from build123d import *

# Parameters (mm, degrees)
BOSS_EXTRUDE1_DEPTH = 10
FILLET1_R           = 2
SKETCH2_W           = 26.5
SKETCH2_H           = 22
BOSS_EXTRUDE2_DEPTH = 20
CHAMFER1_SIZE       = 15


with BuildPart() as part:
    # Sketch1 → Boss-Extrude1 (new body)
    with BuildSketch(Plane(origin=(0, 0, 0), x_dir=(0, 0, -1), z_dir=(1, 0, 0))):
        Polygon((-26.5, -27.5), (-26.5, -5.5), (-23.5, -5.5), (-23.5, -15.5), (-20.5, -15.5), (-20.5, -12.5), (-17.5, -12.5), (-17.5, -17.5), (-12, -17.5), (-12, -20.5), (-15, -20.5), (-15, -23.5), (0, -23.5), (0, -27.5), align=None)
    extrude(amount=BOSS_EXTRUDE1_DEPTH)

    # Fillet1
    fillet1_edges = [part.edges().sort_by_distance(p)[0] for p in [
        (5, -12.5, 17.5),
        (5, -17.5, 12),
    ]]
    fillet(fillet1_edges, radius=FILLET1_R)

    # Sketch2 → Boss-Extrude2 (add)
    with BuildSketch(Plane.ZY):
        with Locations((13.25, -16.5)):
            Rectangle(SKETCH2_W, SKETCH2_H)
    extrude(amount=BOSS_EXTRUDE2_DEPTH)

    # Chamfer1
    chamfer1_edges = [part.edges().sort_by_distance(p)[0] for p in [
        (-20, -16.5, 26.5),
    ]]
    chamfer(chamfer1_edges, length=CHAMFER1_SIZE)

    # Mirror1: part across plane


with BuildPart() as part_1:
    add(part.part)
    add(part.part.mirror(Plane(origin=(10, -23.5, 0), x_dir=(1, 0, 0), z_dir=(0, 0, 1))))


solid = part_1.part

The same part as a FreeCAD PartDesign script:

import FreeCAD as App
import Part
import Sketcher
Q = App.Units.Quantity


def edges_at(feature, points):
    """Names of the edges that pass closest to the given points."""
    edges = feature.Shape.Edges
    near = lambda p: min(range(len(edges)), key=lambda i: edges[i].distToShape(Part.Vertex(*p))[0])
    return sorted({f"Edge{near(p) + 1}" for p in points})


def add_polygon(sketch, points):
    """Adds a closed chain of lines whose ends are joined by coincident constraints."""
    first, n = sketch.GeometryCount, len(points)
    for a, b in zip(points, points[1:] + points[:1]):
        sketch.addGeometry(Part.LineSegment(App.Vector(*a, 0), App.Vector(*b, 0)), False)
    for i in range(n):
        sketch.addConstraint(Sketcher.Constraint("Coincident", first + i, 2, first + (i + 1) % n, 1))

doc = App.newDocument("Part")
params = doc.addObject("Spreadsheet::Sheet", "Params")
for row, (alias, value) in enumerate([
    ("sketch1_width", "22 mm"),
    ("sketch1_width2", "4 mm"),
    ("sketch1_width3", "3 mm"),
    ("sketch1_width4", "5 mm"),
    ("sketch1_height", "15 mm"),
    ("pad1_length", "10 mm"),
    ("fillet_radius", "2 mm"),
    ("sketch2_width", "22 mm"),
    ("sketch2_height", "26.5 mm"),
    ("pad2_length", "20 mm"),
    ("chamfer_size", "15 mm"),
], start=1):
    params.set(f"A{row}", alias)
    params.set(f"B{row}", "=" + value)
    params.setAlias(f"B{row}", alias)

body = doc.addObject("PartDesign::Body", "Body")

sketch1 = body.newObject("Sketcher::SketchObject", "Sketch")
sketch1.AttachmentSupport = (doc.getObject("YZ_Plane"), [""])
sketch1.MapMode = "FlatFace"
add_polygon(sketch1, [(-5.5, 26.5), (-27.5, 26.5), (-27.5, 0), (-23.5, 0), (-23.5, 15), (-20.5, 15), (-20.5, 12), (-17.5, 12), (-17.5, 17.5), (-12.5, 17.5), (-12.5, 20.5), (-15.5, 20.5), (-15.5, 23.5), (-5.5, 23.5)])
sketch1.addConstraint([
    Sketcher.Constraint("Horizontal", 0),
    Sketcher.Constraint("Vertical", 1),
    Sketcher.Constraint("Horizontal", 2),
    Sketcher.Constraint("Vertical", 3),
    Sketcher.Constraint("Horizontal", 4),
    Sketcher.Constraint("Vertical", 5),
    Sketcher.Constraint("Horizontal", 6),
    Sketcher.Constraint("Vertical", 7),
    Sketcher.Constraint("Horizontal", 8),
    Sketcher.Constraint("Vertical", 9),
    Sketcher.Constraint("Horizontal", 10),
    Sketcher.Constraint("Vertical", 11),
    Sketcher.Constraint("Horizontal", 12),
    Sketcher.Constraint("Vertical", 13),
    Sketcher.Constraint("PointOnObject", 1, 2, -1),
    Sketcher.Constraint("Equal", 4, 6),
    Sketcher.Constraint("Equal", 6, 10),
    Sketcher.Constraint("Equal", 10, 5),
    Sketcher.Constraint("Equal", 5, 9),
    Sketcher.Constraint("Equal", 9, 11),
    Sketcher.Constraint("Equal", 11, 13),
    Sketcher.Constraint("DistanceX", 0, 2, 0, 1, Q("22 mm")),
    Sketcher.Constraint("DistanceX", 2, 1, 2, 2, Q("4 mm")),
    Sketcher.Constraint("DistanceX", 4, 1, 4, 2, Q("3 mm")),
    Sketcher.Constraint("DistanceX", 8, 1, 8, 2, Q("5 mm")),
    Sketcher.Constraint("DistanceY", 3, 1, 3, 2, Q("15 mm")),
    Sketcher.Constraint("DistanceY", 1, 2, 1, 1, Q("26.5 mm")),
    Sketcher.Constraint("DistanceX", 0, 2, -1, 1, Q("27.5 mm")),
])
sketch1.setExpression("Constraints[35]", "Params.sketch1_width")
sketch1.setExpression("Constraints[36]", "Params.sketch1_width2")
sketch1.setExpression("Constraints[37]", "Params.sketch1_width3")
sketch1.setExpression("Constraints[38]", "Params.sketch1_width4")
sketch1.setExpression("Constraints[39]", "Params.sketch1_height")
pad1 = body.newObject("PartDesign::Pad", "Pad")
pad1.Profile = sketch1
pad1.setExpression("Length", "Params.pad1_length")
doc.recompute()

fillet = body.newObject("PartDesign::Fillet", "Fillet")
fillet.Base = (pad1, edges_at(pad1, [(5, -12.5, 17.5), (5, -17.5, 12)]))
fillet.setExpression("Radius", "Params.fillet_radius")

sketch2 = body.newObject("Sketcher::SketchObject", "Sketch001")
sketch2.AttachmentSupport = (doc.getObject("YZ_Plane"), [""])
sketch2.MapMode = "FlatFace"
add_polygon(sketch2, [(-6, 0), (-28, 0), (-28, 26), (-6, 26)])
sketch2.addConstraint([
    Sketcher.Constraint("Horizontal", 0),
    Sketcher.Constraint("Vertical", 1),
    Sketcher.Constraint("Horizontal", 2),
    Sketcher.Constraint("Vertical", 3),
    Sketcher.Constraint("PointOnObject", 0, 2, -1),
    Sketcher.Constraint("DistanceX", 0, 2, 0, 1, Q("22 mm")),
    Sketcher.Constraint("DistanceY", 1, 1, 1, 2, Q("26.5 mm")),
    Sketcher.Constraint("DistanceX", 0, 2, -1, 1, Q("27.5 mm")),
])
sketch2.setExpression("Constraints[9]", "Params.sketch2_width")
sketch2.setExpression("Constraints[10]", "Params.sketch2_height")
pad2 = body.newObject("PartDesign::Pad", "Pad001")
pad2.Profile = sketch2
pad2.setExpression("Length", "Params.pad2_length")
pad2.Reversed = True
doc.recompute()

chamfer = body.newObject("PartDesign::Chamfer", "Chamfer")
chamfer.Base = (pad2, edges_at(pad2, [(-20, -16.5, 26.5)]))
chamfer.setExpression("Size", "Params.chamfer_size")
body2 = doc.addObject("PartDesign::Body", "Body001")
doc.recompute()

body2.BaseFeature = body
doc.recompute()

mirroring = doc.addObject("Part::Mirroring", "Mirroring")
mirroring.Source = body
mirroring.Base = App.Vector(10, -23.5, 0)
mirroring.Normal = App.Vector(0, 0, 1)
body3 = doc.addObject("PartDesign::Body", "Body002")
body3.BaseFeature = mirroring
boolean = body2.newObject("PartDesign::Boolean", "Boolean")
boolean.Type = "Fuse"
boolean.addObjects([body3])
doc.recompute()
mirroring.Visibility = False

doc.recompute()
